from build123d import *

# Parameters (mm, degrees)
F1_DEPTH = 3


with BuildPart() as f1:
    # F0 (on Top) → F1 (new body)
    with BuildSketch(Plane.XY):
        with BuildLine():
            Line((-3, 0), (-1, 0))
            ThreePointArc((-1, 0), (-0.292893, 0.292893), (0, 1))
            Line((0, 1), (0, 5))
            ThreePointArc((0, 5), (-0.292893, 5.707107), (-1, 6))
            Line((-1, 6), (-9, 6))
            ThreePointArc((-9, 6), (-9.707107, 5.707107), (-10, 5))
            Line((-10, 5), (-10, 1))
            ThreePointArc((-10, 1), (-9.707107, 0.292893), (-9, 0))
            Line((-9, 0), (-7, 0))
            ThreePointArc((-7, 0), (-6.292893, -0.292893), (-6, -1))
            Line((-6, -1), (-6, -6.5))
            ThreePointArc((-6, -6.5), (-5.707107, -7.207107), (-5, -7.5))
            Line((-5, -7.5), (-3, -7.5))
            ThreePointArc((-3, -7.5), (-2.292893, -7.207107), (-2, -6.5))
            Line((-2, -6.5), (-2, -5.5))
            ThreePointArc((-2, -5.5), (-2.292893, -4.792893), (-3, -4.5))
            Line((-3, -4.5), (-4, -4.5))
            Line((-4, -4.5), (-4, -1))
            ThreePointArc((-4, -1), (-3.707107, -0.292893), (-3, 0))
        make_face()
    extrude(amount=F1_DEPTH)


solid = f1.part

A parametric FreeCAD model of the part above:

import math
import FreeCAD as App
import Part
import Sketcher
from FreeCAD import Vector

doc = App.newDocument("Part")
body = doc.addObject("PartDesign::Body", "Body")

# Sketch on XY plane
sketch1 = doc.addObject("Sketcher::SketchObject", "Sketch")
body.addObject(sketch1)
sketch1.AttachmentSupport = (doc.XY_Plane, [""])
sketch1.MapMode = "FlatFace"
sketch1.addGeometry([
    Part.LineSegment(Vector(-3, 0, 0), Vector(-1, 0, 0)),  # 0
    Part.ArcOfCircle(Part.Circle(Vector(-1, 1, 0), Vector(0, 0, 1), 1), math.radians(-90), math.radians(0)),  # 1
    Part.LineSegment(Vector(0, 1, 0), Vector(0, 5, 0)),  # 2
    Part.ArcOfCircle(Part.Circle(Vector(-1, 5, 0), Vector(0, 0, 1), 1), math.radians(0), math.radians(90)),  # 3
    Part.LineSegment(Vector(-1, 6, 0), Vector(-9, 6, 0)),  # 4
    Part.ArcOfCircle(Part.Circle(Vector(-9, 5, 0), Vector(0, 0, 1), 1), math.radians(90), math.radians(180)),  # 5
    Part.LineSegment(Vector(-10, 5, 0), Vector(-10, 1, 0)),  # 6
    Part.ArcOfCircle(Part.Circle(Vector(-9, 1, 0), Vector(0, 0, 1), 1), math.radians(180), math.radians(270)),  # 7
    Part.LineSegment(Vector(-9, 0, 0), Vector(-7, 0, 0)),  # 8
    Part.ArcOfCircle(Part.Circle(Vector(-7, -1, 0), Vector(0, 0, 1), 1), math.radians(0), math.radians(90)),  # 9
    Part.LineSegment(Vector(-6, -1, 0), Vector(-6, -6.5, 0)),  # 10
    Part.ArcOfCircle(Part.Circle(Vector(-5, -6.5, 0), Vector(0, 0, 1), 1), math.radians(180), math.radians(270)),  # 11
    Part.LineSegment(Vector(-5, -7.5, 0), Vector(-3, -7.5, 0)),  # 12
    Part.ArcOfCircle(Part.Circle(Vector(-3, -6.5, 0), Vector(0, 0, 1), 1), math.radians(-90), math.radians(0)),  # 13
    Part.LineSegment(Vector(-2, -6.5, 0), Vector(-2, -5.5, 0)),  # 14
    Part.ArcOfCircle(Part.Circle(Vector(-3, -5.5, 0), Vector(0, 0, 1), 1), math.radians(0), math.radians(90)),  # 15
    Part.LineSegment(Vector(-3, -4.5, 0), Vector(-4, -4.5, 0)),  # 16
    Part.LineSegment(Vector(-4, -4.5, 0), Vector(-4, -1, 0)),  # 17
    Part.ArcOfCircle(Part.Circle(Vector(-3, -1, 0), Vector(0, 0, 1), 1), math.radians(90), math.radians(180)),  # 18
], False)
sketch1.addConstraint([
    Sketcher.Constraint("Tangent", 0, 2, 1, 1),
    Sketcher.Constraint("Tangent", 1, 2, 2, 1),
    Sketcher.Constraint("Tangent", 2, 2, 3, 1),
    Sketcher.Constraint("Tangent", 3, 2, 4, 1),
    Sketcher.Constraint("Tangent", 4, 2, 5, 1),
    Sketcher.Constraint("Tangent", 5, 2, 6, 1),
    Sketcher.Constraint("Tangent", 6, 2, 7, 1),
    Sketcher.Constraint("Tangent", 7, 2, 8, 1),
    Sketcher.Constraint("Tangent", 8, 2, 9, 2),
    Sketcher.Constraint("Tangent", 9, 1, 10, 1),
    Sketcher.Constraint("Tangent", 10, 2, 11, 1),
    Sketcher.Constraint("Tangent", 11, 2, 12, 1),
    Sketcher.Constraint("Tangent", 12, 2, 13, 1),
    Sketcher.Constraint("Tangent", 13, 2, 14, 1),
    Sketcher.Constraint("Tangent", 14, 2, 15, 1),
    Sketcher.Constraint("Tangent", 15, 2, 16, 1),
    Sketcher.Constraint("Coincident", 16, 2, 17, 1),
    Sketcher.Constraint("Tangent", 17, 2, 18, 2),
    Sketcher.Constraint("Tangent", 18, 1, 0, 1),
    Sketcher.Constraint("Horizontal", 0),
    Sketcher.Constraint("Vertical", 2),
    Sketcher.Constraint("Horizontal", 4),
    Sketcher.Constraint("Vertical", 6),
    Sketcher.Constraint("Horizontal", 8),
    Sketcher.Constraint("Vertical", 10),
    Sketcher.Constraint("Horizontal", 12),
    Sketcher.Constraint("Vertical", 14),
    Sketcher.Constraint("Horizontal", 16),
    Sketcher.Constraint("Vertical", 17),
    Sketcher.Constraint("Equal", 1, 3),
    Sketcher.Constraint("Equal", 3, 5),
    Sketcher.Constraint("Equal", 5, 7),
    Sketcher.Constraint("Equal", 7, 9),
    Sketcher.Constraint("Equal", 9, 11),
    Sketcher.Constraint("Equal", 11, 13),
    Sketcher.Constraint("Equal", 13, 15),
    Sketcher.Constraint("Equal", 15, 18),
    Sketcher.Constraint("PointOnObject", 0, 2, -1),
    Sketcher.Constraint("PointOnObject", 1, 2, -2),
    Sketcher.Constraint("PointOnObject", 7, 2, -1),
    Sketcher.Constraint("Vertical", 15, 3, 18, 3),
    Sketcher.Constraint("Equal", 0, 8),
    Sketcher.Constraint("Equal", 8, 12),
    Sketcher.Constraint("Equal", 16, 14),
    Sketcher.Constraint("Radius", 1, 0.999999),
    Sketcher.Constraint("DistanceX", 0, 1, 0, 2, 2.0),
    Sketcher.Constraint("DistanceY", 2, 1, 2, 2, 4.0),
    Sketcher.Constraint("DistanceY", 10, 2, 10, 1, 5.5),
])
pad1 = doc.addObject("PartDesign::Pad", "Pad")
body.addObject(pad1)
pad1.Profile = sketch1
pad1.Length = 3

doc.recompute()
